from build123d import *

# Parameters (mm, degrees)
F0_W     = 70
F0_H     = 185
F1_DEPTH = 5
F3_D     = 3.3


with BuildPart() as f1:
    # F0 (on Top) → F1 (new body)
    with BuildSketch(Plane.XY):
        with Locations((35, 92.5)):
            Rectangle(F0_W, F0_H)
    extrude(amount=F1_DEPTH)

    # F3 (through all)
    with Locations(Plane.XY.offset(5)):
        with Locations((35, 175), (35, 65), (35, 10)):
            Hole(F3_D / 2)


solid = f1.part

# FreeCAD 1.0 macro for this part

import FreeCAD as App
import Part
import Sketcher
from FreeCAD import Vector
Q = App.Units.Quantity


def add_polygon(sketch, points):
    """Adds a closed chain of lines whose ends are joined by coincident constraints."""
    first, n = sketch.GeometryCount, len(points)
    for a, b in zip(points, points[1:] + points[:1]):
        sketch.addGeometry(Part.LineSegment(App.Vector(*a, 0), App.Vector(*b, 0)), False)
    for i in range(n):
        sketch.addConstraint(Sketcher.Constraint("Coincident", first + i, 2, first + (i + 1) % n, 1))

doc = App.newDocument("Part")
body = doc.addObject("PartDesign::Body", "Body")

# Sketch on XY plane
sketch1 = body.newObject("Sketcher::SketchObject", "Sketch")
sketch1.AttachmentSupport = (doc.getObject("XY_Plane"), [""])
sketch1.MapMode = "FlatFace"
add_polygon(sketch1, [(0, 185), (0, 0), (70, 0), (70, 185)])  # lines 0-3
sketch1.addConstraint(Sketcher.Constraint("Vertical", 0))
sketch1.addConstraint(Sketcher.Constraint("Horizontal", 1))
sketch1.addConstraint(Sketcher.Constraint("Vertical", 2))
sketch1.addConstraint(Sketcher.Constraint("Horizontal", 3))
sketch1.addConstraint(Sketcher.Constraint("Coincident", 0, 2, -1, 1))
sketch1.addConstraint(Sketcher.Constraint("DistanceX", 1, 1, 1, 2, Q("70 mm")))
sketch1.addConstraint(Sketcher.Constraint("DistanceY", 0, 2, 0, 1, Q("185 mm")))
pad1 = body.newObject("PartDesign::Pad", "Pad")
pad1.Profile = sketch1
pad1.Length = 5

# Sketch on XY plane
sketch2 = body.newObject("Sketcher::SketchObject", "Sketch001")
sketch2.AttachmentSupport = (doc.getObject("XY_Plane"), [""])
sketch2.MapMode = "FlatFace"
sketch2.AttachmentOffset = App.Placement(Vector(0, 0, 5), App.Rotation())
sketch2.addGeometry(Part.Circle(Vector(35, 175, 0), Vector(0, 0, 1), 1.6), False)
sketch2.addGeometry(Part.Circle(Vector(35, 65, 0), Vector(0, 0, 1), 1.6), False)
sketch2.addGeometry(Part.Circle(Vector(35, 10, 0), Vector(0, 0, 1), 1.6), False)
sketch2.addConstraint(Sketcher.Constraint("Equal", 0, 1))
sketch2.addConstraint(Sketcher.Constraint("Equal", 1, 2))
sketch2.addConstraint(Sketcher.Constraint("Vertical", 0, 3, 1, 3))
sketch2.addConstraint(Sketcher.Constraint("Vertical", 1, 3, 2, 3))
sketch2.addConstraint(Sketcher.Constraint("Diameter", 0, Q("3.3 mm")))
sketch2.addConstraint(Sketcher.Constraint("DistanceX", -1, 1, 0, 3, Q("35 mm")))
sketch2.addConstraint(Sketcher.Constraint("DistanceY", -1, 1, 0, 3, Q("175 mm")))
sketch2.addConstraint(Sketcher.Constraint("DistanceY", -1, 1, 1, 3, Q("65 mm")))
sketch2.addConstraint(Sketcher.Constraint("DistanceY", -1, 1, 2, 3, Q("10 mm")))
doc.recompute()
hole = body.newObject("PartDesign::Hole", "Hole")
hole.Profile = sketch2
hole.ThreadType = "None"
hole.Diameter = 3.3
hole.DepthType = "ThroughAll"

doc.recompute()
